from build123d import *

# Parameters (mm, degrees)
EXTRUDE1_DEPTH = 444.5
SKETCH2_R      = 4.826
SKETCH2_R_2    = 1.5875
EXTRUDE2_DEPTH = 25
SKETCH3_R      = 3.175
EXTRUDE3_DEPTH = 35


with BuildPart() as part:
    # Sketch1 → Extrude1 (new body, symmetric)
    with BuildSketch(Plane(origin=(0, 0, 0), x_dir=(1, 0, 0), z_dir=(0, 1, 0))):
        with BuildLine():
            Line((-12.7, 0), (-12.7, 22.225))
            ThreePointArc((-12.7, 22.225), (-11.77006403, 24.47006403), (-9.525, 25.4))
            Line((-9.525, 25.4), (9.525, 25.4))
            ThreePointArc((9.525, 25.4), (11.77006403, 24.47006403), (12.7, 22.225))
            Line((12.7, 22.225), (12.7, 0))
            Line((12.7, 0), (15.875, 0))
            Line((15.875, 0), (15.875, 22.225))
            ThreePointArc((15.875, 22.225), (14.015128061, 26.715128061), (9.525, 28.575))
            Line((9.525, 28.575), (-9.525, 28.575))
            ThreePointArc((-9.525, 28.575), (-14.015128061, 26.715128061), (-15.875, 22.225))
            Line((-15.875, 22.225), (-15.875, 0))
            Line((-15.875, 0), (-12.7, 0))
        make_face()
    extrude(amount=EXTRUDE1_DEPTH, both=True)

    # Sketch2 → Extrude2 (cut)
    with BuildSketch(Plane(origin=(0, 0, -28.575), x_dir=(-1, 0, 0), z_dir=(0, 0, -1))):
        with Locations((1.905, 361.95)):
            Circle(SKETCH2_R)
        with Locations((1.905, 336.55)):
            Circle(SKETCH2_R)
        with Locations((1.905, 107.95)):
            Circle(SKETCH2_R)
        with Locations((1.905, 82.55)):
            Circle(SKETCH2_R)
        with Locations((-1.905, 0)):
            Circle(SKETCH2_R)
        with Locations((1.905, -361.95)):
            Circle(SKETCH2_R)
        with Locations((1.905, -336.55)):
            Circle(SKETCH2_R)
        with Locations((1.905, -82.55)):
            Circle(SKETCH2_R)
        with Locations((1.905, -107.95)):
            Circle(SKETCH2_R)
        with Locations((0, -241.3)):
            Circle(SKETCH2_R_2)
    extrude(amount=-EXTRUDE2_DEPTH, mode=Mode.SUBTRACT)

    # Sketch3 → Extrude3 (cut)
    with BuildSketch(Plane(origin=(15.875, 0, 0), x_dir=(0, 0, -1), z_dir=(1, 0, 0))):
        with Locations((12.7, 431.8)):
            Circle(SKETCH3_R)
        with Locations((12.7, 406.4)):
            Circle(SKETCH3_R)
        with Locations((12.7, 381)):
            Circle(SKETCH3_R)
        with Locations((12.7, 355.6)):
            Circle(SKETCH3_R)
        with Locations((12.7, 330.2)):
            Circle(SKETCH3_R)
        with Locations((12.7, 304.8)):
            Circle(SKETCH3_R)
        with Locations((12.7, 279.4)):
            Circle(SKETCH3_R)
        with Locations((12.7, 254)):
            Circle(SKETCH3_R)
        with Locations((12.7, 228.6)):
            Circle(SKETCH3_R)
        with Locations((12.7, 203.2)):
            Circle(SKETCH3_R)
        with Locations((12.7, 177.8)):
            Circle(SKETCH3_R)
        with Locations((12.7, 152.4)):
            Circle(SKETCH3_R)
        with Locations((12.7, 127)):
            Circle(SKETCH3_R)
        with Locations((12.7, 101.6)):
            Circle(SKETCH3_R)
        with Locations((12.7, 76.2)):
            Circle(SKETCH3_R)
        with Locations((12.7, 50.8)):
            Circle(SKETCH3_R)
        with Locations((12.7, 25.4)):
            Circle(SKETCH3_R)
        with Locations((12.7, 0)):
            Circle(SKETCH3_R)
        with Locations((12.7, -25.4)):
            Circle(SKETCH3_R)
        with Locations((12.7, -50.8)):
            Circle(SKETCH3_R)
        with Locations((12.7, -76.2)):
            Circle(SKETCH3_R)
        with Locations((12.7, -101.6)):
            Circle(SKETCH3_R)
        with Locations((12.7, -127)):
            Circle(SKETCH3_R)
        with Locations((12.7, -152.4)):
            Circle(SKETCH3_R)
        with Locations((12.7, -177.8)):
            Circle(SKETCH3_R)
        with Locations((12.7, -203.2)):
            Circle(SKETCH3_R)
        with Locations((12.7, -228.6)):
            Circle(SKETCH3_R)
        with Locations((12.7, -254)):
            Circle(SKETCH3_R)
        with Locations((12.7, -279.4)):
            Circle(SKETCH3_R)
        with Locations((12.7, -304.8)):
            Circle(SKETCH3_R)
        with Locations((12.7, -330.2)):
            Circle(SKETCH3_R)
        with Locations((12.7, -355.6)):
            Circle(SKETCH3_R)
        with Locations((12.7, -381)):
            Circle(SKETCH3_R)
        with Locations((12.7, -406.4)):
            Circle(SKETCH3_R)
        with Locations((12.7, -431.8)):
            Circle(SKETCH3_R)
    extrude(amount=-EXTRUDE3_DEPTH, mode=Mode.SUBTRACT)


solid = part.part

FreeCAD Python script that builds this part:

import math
import FreeCAD as App
import Part
import Sketcher
Q = App.Units.Quantity

doc = App.newDocument("Part")
body = doc.addObject("PartDesign::Body", "Body")

# Sketch on XZ plane
sketch1 = body.newObject("Sketcher::SketchObject", "Sketch")
sketch1.AttachmentSupport = (doc.getObject("XZ_Plane"), [""])
sketch1.MapMode = "FlatFace"
sketch1.addGeometry(Part.LineSegment(App.Vector(-12.7, 0, 0), App.Vector(-12.7, -22.225, 0)), False)
sketch1.addGeometry(Part.ArcOfCircle(Part.Circle(App.Vector(-9.525, -22.225, 0), App.Vector(0, 0, 1), 3.175), math.radians(-180), math.radians(-90)), False)
sketch1.addGeometry(Part.LineSegment(App.Vector(-9.525, -25.4, 0), App.Vector(9.525, -25.4, 0)), False)
sketch1.addGeometry(Part.ArcOfCircle(Part.Circle(App.Vector(9.525, -22.225, 0), App.Vector(0, 0, 1), 3.175), math.radians(-90), math.radians(0)), False)
sketch1.addGeometry(Part.LineSegment(App.Vector(12.7, -22.225, 0), App.Vector(12.7, 0, 0)), False)
sketch1.addGeometry(Part.LineSegment(App.Vector(12.7, 0, 0), App.Vector(15.875, 0, 0)), False)
sketch1.addGeometry(Part.LineSegment(App.Vector(15.875, 0, 0), App.Vector(15.875, -22.225, 0)), False)
sketch1.addGeometry(Part.ArcOfCircle(Part.Circle(App.Vector(9.525, -22.225, 0), App.Vector(0, 0, 1), 6.35), math.radians(-90), math.radians(0)), False)
sketch1.addGeometry(Part.LineSegment(App.Vector(9.525, -28.575, 0), App.Vector(-9.525, -28.575, 0)), False)
sketch1.addGeometry(Part.ArcOfCircle(Part.Circle(App.Vector(-9.525, -22.225, 0), App.Vector(0, 0, 1), 6.35), math.radians(180), math.radians(270)), False)
sketch1.addGeometry(Part.LineSegment(App.Vector(-15.875, -22.225, 0), App.Vector(-15.875, 0, 0)), False)
sketch1.addGeometry(Part.LineSegment(App.Vector(-15.875, 0, 0), App.Vector(-12.7, 0, 0)), False)
sketch1.addConstraint(Sketcher.Constraint("Tangent", 0, 2, 1, 1))
sketch1.addConstraint(Sketcher.Constraint("Tangent", 1, 2, 2, 1))
sketch1.addConstraint(Sketcher.Constraint("Tangent", 2, 2, 3, 1))
sketch1.addConstraint(Sketcher.Constraint("Tangent", 3, 2, 4, 1))
sketch1.addConstraint(Sketcher.Constraint("Coincident", 4, 2, 5, 1))
sketch1.addConstraint(Sketcher.Constraint("Coincident", 5, 2, 6, 1))
sketch1.addConstraint(Sketcher.Constraint("Tangent", 6, 2, 7, 2))
sketch1.addConstraint(Sketcher.Constraint("Tangent", 7, 1, 8, 1))
sketch1.addConstraint(Sketcher.Constraint("Tangent", 8, 2, 9, 2))
sketch1.addConstraint(Sketcher.Constraint("Tangent", 9, 1, 10, 1))
sketch1.addConstraint(Sketcher.Constraint("Coincident", 10, 2, 11, 1))
sketch1.addConstraint(Sketcher.Constraint("Coincident", 11, 2, 0, 1))
sketch1.addConstraint(Sketcher.Constraint("Vertical", 0))
sketch1.addConstraint(Sketcher.Constraint("Horizontal", 2))
sketch1.addConstraint(Sketcher.Constraint("Vertical", 4))
sketch1.addConstraint(Sketcher.Constraint("Horizontal", 5))
sketch1.addConstraint(Sketcher.Constraint("Vertical", 6))
sketch1.addConstraint(Sketcher.Constraint("Horizontal", 8))
sketch1.addConstraint(Sketcher.Constraint("Vertical", 10))
sketch1.addConstraint(Sketcher.Constraint("Horizontal", 11))
sketch1.addConstraint(Sketcher.Constraint("Coincident", 7, 3, 3, 3))
sketch1.addConstraint(Sketcher.Constraint("Coincident", 9, 3, 1, 3))
sketch1.addConstraint(Sketcher.Constraint("Equal", 1, 3))
sketch1.addConstraint(Sketcher.Constraint("Symmetric", 5, 2, 10, 2, -1, 1))
sketch1.addConstraint(Sketcher.Constraint("PointOnObject", 4, 2, -1))
sketch1.addConstraint(Sketcher.Constraint("Radius", 7, Q("0.25 in")))
sketch1.addConstraint(Sketcher.Constraint("DistanceY", 1, 2, -1, 1, Q("1 in")))
sketch1.addConstraint(Sketcher.Constraint("Radius", 1, Q("0.125 in")))
sketch1.addConstraint(Sketcher.Constraint("DistanceX", 2, 1, 2, 2, Q("0.75 in")))
pad1 = body.newObject("PartDesign::Pad", "Pad")
pad1.Profile = sketch1
pad1.Length = Q("35 in")
pad1.Midplane = True

# Sketch on XY plane
sketch2 = body.newObject("Sketcher::SketchObject", "Sketch001")
sketch2.AttachmentSupport = (doc.getObject("XY_Plane"), [""])
sketch2.MapMode = "FlatFace"
sketch2.AttachmentOffset = App.Placement(App.Vector(0, 0, -1.125 * 25.4), App.Rotation())
sketch2.addGeometry(Part.Circle(App.Vector(-1.905, 361.95, 0), App.Vector(0, 0, 1), 4.826), False)
sketch2.addGeometry(Part.Circle(App.Vector(-1.905, 336.55, 0), App.Vector(0, 0, 1), 4.826), False)
sketch2.addGeometry(Part.Circle(App.Vector(-1.905, 107.95, 0), App.Vector(0, 0, 1), 4.826), False)
sketch2.addGeometry(Part.Circle(App.Vector(-1.905, 82.55, 0), App.Vector(0, 0, 1), 4.826), False)
sketch2.addGeometry(Part.Circle(App.Vector(1.905, 0, 0), App.Vector(0, 0, 1), 4.826), False)
sketch2.addGeometry(Part.Circle(App.Vector(-1.905, -361.95, 0), App.Vector(0, 0, 1), 4.826), False)
sketch2.addGeometry(Part.Circle(App.Vector(-1.905, -336.55, 0), App.Vector(0, 0, 1), 4.826), False)
sketch2.addGeometry(Part.Circle(App.Vector(-1.905, -82.55, 0), App.Vector(0, 0, 1), 4.826), False)
sketch2.addGeometry(Part.Circle(App.Vector(-1.905, -107.95, 0), App.Vector(0, 0, 1), 4.826), False)
sketch2.addGeometry(Part.Circle(App.Vector(0, -241.3, 0), App.Vector(0, 0, 1), 1.5875), False)
sketch2.addConstraint(Sketcher.Constraint("Equal", 0, 1))
sketch2.addConstraint(Sketcher.Constraint("Equal", 1, 2))
sketch2.addConstraint(Sketcher.Constraint("Equal", 2, 3))
sketch2.addConstraint(Sketcher.Constraint("Equal", 3, 4))
sketch2.addConstraint(Sketcher.Constraint("Equal", 4, 5))
sketch2.addConstraint(Sketcher.Constraint("Equal", 5, 6))
sketch2.addConstraint(Sketcher.Constraint("Equal", 6, 7))
sketch2.addConstraint(Sketcher.Constraint("Equal", 7, 8))
sketch2.addConstraint(Sketcher.Constraint("Symmetric", 0, 3, 5, 3, -1))
sketch2.addConstraint(Sketcher.Constraint("Symmetric", 1, 3, 6, 3, -1))
sketch2.addConstraint(Sketcher.Constraint("Symmetric", 3, 3, 7, 3, -1))
sketch2.addConstraint(Sketcher.Constraint("Symmetric", 2, 3, 8, 3, -1))
sketch2.addConstraint(Sketcher.Constraint("PointOnObject", 4, 3, -1))
sketch2.addConstraint(Sketcher.Constraint("PointOnObject", 9, 3, -2))
sketch2.addConstraint(Sketcher.Constraint("Vertical", 0, 3, 1, 3))
sketch2.addConstraint(Sketcher.Constraint("Vertical", 1, 3, 2, 3))
sketch2.addConstraint(Sketcher.Constraint("Vertical", 2, 3, 3, 3))
sketch2.addConstraint(Sketcher.Constraint("Diameter", 0, Q("0.38 in")))
sketch2.addConstraint(Sketcher.Constraint("Diameter", 9, Q("0.125 in")))
sketch2.addConstraint(Sketcher.Constraint("DistanceY", 1, 3, 0, 3, Q("1 in")))
sketch2.addConstraint(Sketcher.Constraint("DistanceY", 2, 3, 1, 3, Q("9 in")))
sketch2.addConstraint(Sketcher.Constraint("DistanceY", 3, 3, 2, 3, Q("1 in")))
sketch2.addConstraint(Sketcher.Constraint("DistanceY", 9, 3, -1, 1, Q("9.5 in")))
sketch2.addConstraint(Sketcher.Constraint("DistanceY", 5, 3, 3, 3, Q("17.5 in")))
sketch2.addConstraint(Sketcher.Constraint("DistanceX", 3, 3, 4, 3, Q("0.15 in")))
sketch2.addConstraint(Sketcher.Constraint("DistanceX", 0, 3, -1, 1, Q("0.075 in")))
pocket1 = body.newObject("PartDesign::Pocket", "Pocket")
pocket1.Profile = sketch2
pocket1.Length = 25
pocket1.Reversed = True

# Sketch on YZ plane
sketch3 = body.newObject("Sketcher::SketchObject", "Sketch002")
sketch3.AttachmentSupport = (doc.getObject("YZ_Plane"), [""])
sketch3.MapMode = "FlatFace"
sketch3.AttachmentOffset = App.Placement(App.Vector(0, 0, 0.625 * 25.4), App.Rotation())
sketch3.addGeometry(Part.Circle(App.Vector(431.8, -12.7, 0), App.Vector(0, 0, 1), 3.175), False)
sketch3.addGeometry(Part.Circle(App.Vector(406.4, -12.7, 0), App.Vector(0, 0, 1), 3.175), False)
sketch3.addGeometry(Part.Circle(App.Vector(381, -12.7, 0), App.Vector(0, 0, 1), 3.175), False)
sketch3.addGeometry(Part.Circle(App.Vector(355.6, -12.7, 0), App.Vector(0, 0, 1), 3.175), False)
sketch3.addGeometry(Part.Circle(App.Vector(330.2, -12.7, 0), App.Vector(0, 0, 1), 3.175), False)
sketch3.addGeometry(Part.Circle(App.Vector(304.8, -12.7, 0), App.Vector(0, 0, 1), 3.175), False)
sketch3.addGeometry(Part.Circle(App.Vector(279.4, -12.7, 0), App.Vector(0, 0, 1), 3.175), False)
sketch3.addGeometry(Part.Circle(App.Vector(254, -12.7, 0), App.Vector(0, 0, 1), 3.175), False)
sketch3.addGeometry(Part.Circle(App.Vector(228.6, -12.7, 0), App.Vector(0, 0, 1), 3.175), False)
sketch3.addGeometry(Part.Circle(App.Vector(203.2, -12.7, 0), App.Vector(0, 0, 1), 3.175), False)
sketch3.addGeometry(Part.Circle(App.Vector(177.8, -12.7, 0), App.Vector(0, 0, 1), 3.175), False)
sketch3.addGeometry(Part.Circle(App.Vector(152.4, -12.7, 0), App.Vector(0, 0, 1), 3.175), False)
sketch3.addGeometry(Part.Circle(App.Vector(127, -12.7, 0), App.Vector(0, 0, 1), 3.175), False)
sketch3.addGeometry(Part.Circle(App.Vector(101.6, -12.7, 0), App.Vector(0, 0, 1), 3.175), False)
sketch3.addGeometry(Part.Circle(App.Vector(76.2, -12.7, 0), App.Vector(0, 0, 1), 3.175), False)
sketch3.addGeometry(Part.Circle(App.Vector(50.8, -12.7, 0), App.Vector(0, 0, 1), 3.175), False)
sketch3.addGeometry(Part.Circle(App.Vector(25.4, -12.7, 0), App.Vector(0, 0, 1), 3.175), False)
sketch3.addGeometry(Part.Circle(App.Vector(0, -12.7, 0), App.Vector(0, 0, 1), 3.175), False)
sketch3.addGeometry(Part.Circle(App.Vector(-25.4, -12.7, 0), App.Vector(0, 0, 1), 3.175), False)
sketch3.addGeometry(Part.Circle(App.Vector(-50.8, -12.7, 0), App.Vector(0, 0, 1), 3.175), False)
sketch3.addGeometry(Part.Circle(App.Vector(-76.2, -12.7, 0), App.Vector(0, 0, 1), 3.175), False)
sketch3.addGeometry(Part.Circle(App.Vector(-101.6, -12.7, 0), App.Vector(0, 0, 1), 3.175), False)
sketch3.addGeometry(Part.Circle(App.Vector(-127, -12.7, 0), App.Vector(0, 0, 1), 3.175), False)
sketch3.addGeometry(Part.Circle(App.Vector(-152.4, -12.7, 0), App.Vector(0, 0, 1), 3.175), False)
sketch3.addGeometry(Part.Circle(App.Vector(-177.8, -12.7, 0), App.Vector(0, 0, 1), 3.175), False)
sketch3.addGeometry(Part.Circle(App.Vector(-203.2, -12.7, 0), App.Vector(0, 0, 1), 3.175), False)
sketch3.addGeometry(Part.Circle(App.Vector(-228.6, -12.7, 0), App.Vector(0, 0, 1), 3.175), False)
sketch3.addGeometry(Part.Circle(App.Vector(-254, -12.7, 0), App.Vector(0, 0, 1), 3.175), False)
sketch3.addGeometry(Part.Circle(App.Vector(-279.4, -12.7, 0), App.Vector(0, 0, 1), 3.175), False)
sketch3.addGeometry(Part.Circle(App.Vector(-304.8, -12.7, 0), App.Vector(0, 0, 1), 3.175), False)
sketch3.addGeometry(Part.Circle(App.Vector(-330.2, -12.7, 0), App.Vector(0, 0, 1), 3.175), False)
sketch3.addGeometry(Part.Circle(App.Vector(-355.6, -12.7, 0), App.Vector(0, 0, 1), 3.175), False)
sketch3.addGeometry(Part.Circle(App.Vector(-381, -12.7, 0), App.Vector(0, 0, 1), 3.175), False)
sketch3.addGeometry(Part.Circle(App.Vector(-406.4, -12.7, 0), App.Vector(0, 0, 1), 3.175), False)
sketch3.addGeometry(Part.Circle(App.Vector(-431.8, -12.7, 0), App.Vector(0, 0, 1), 3.175), False)
sketch3.addConstraint(Sketcher.Constraint("Equal", 0, 1))
sketch3.addConstraint(Sketcher.Constraint("Equal", 1, 2))
sketch3.addConstraint(Sketcher.Constraint("Equal", 2, 3))
sketch3.addConstraint(Sketcher.Constraint("Equal", 3, 4))
sketch3.addConstraint(Sketcher.Constraint("Equal", 4, 5))
sketch3.addConstraint(Sketcher.Constraint("Equal", 5, 6))
sketch3.addConstraint(Sketcher.Constraint("Equal", 6, 7))
sketch3.addConstraint(Sketcher.Constraint("Equal", 7, 8))
sketch3.addConstraint(Sketcher.Constraint("Equal", 8, 9))
sketch3.addConstraint(Sketcher.Constraint("Equal", 9, 10))
sketch3.addConstraint(Sketcher.Constraint("Equal", 10, 11))
sketch3.addConstraint(Sketcher.Constraint("Equal", 11, 12))
sketch3.addConstraint(Sketcher.Constraint("Equal", 12, 13))
sketch3.addConstraint(Sketcher.Constraint("Equal", 13, 14))
sketch3.addConstraint(Sketcher.Constraint("Equal", 14, 15))
sketch3.addConstraint(Sketcher.Constraint("Equal", 15, 16))
sketch3.addConstraint(Sketcher.Constraint("Equal", 16, 17))
sketch3.addConstraint(Sketcher.Constraint("Equal", 17, 18))
sketch3.addConstraint(Sketcher.Constraint("Equal", 18, 19))
sketch3.addConstraint(Sketcher.Constraint("Equal", 19, 20))
sketch3.addConstraint(Sketcher.Constraint("Equal", 20, 21))
sketch3.addConstraint(Sketcher.Constraint("Equal", 21, 22))
sketch3.addConstraint(Sketcher.Constraint("Equal", 22, 23))
sketch3.addConstraint(Sketcher.Constraint("Equal", 23, 24))
sketch3.addConstraint(Sketcher.Constraint("Equal", 24, 25))
sketch3.addConstraint(Sketcher.Constraint("Equal", 25, 26))
sketch3.addConstraint(Sketcher.Constraint("Equal", 26, 27))
sketch3.addConstraint(Sketcher.Constraint("Equal", 27, 28))
sketch3.addConstraint(Sketcher.Constraint("Equal", 28, 29))
sketch3.addConstraint(Sketcher.Constraint("Equal", 29, 30))
sketch3.addConstraint(Sketcher.Constraint("Equal", 30, 31))
sketch3.addConstraint(Sketcher.Constraint("Equal", 31, 32))
sketch3.addConstraint(Sketcher.Constraint("Equal", 32, 33))
sketch3.addConstraint(Sketcher.Constraint("Equal", 33, 34))
sketch3.addConstraint(Sketcher.Constraint("Symmetric", 16, 3, 18, 3, -2))
sketch3.addConstraint(Sketcher.Constraint("Symmetric", 15, 3, 19, 3, -2))
sketch3.addConstraint(Sketcher.Constraint("Symmetric", 14, 3, 20, 3, -2))
sketch3.addConstraint(Sketcher.Constraint("Symmetric", 13, 3, 21, 3, -2))
sketch3.addConstraint(Sketcher.Constraint("Symmetric", 12, 3, 22, 3, -2))
sketch3.addConstraint(Sketcher.Constraint("Symmetric", 11, 3, 23, 3, -2))
sketch3.addConstraint(Sketcher.Constraint("Symmetric", 10, 3, 24, 3, -2))
sketch3.addConstraint(Sketcher.Constraint("Symmetric", 9, 3, 25, 3, -2))
sketch3.addConstraint(Sketcher.Constraint("Symmetric", 8, 3, 26, 3, -2))
sketch3.addConstraint(Sketcher.Constraint("Symmetric", 7, 3, 27, 3, -2))
sketch3.addConstraint(Sketcher.Constraint("Symmetric", 6, 3, 28, 3, -2))
sketch3.addConstraint(Sketcher.Constraint("Symmetric", 5, 3, 29, 3, -2))
sketch3.addConstraint(Sketcher.Constraint("Symmetric", 4, 3, 30, 3, -2))
sketch3.addConstraint(Sketcher.Constraint("Symmetric", 3, 3, 31, 3, -2))
sketch3.addConstraint(Sketcher.Constraint("Symmetric", 2, 3, 32, 3, -2))
sketch3.addConstraint(Sketcher.Constraint("Symmetric", 1, 3, 33, 3, -2))
sketch3.addConstraint(Sketcher.Constraint("Symmetric", 0, 3, 34, 3, -2))
sketch3.addConstraint(Sketcher.Constraint("PointOnObject", 17, 3, -2))
sketch3.addConstraint(Sketcher.Constraint("Horizontal", 0, 3, 1, 3))
sketch3.addConstraint(Sketcher.Constraint("Horizontal", 1, 3, 2, 3))
sketch3.addConstraint(Sketcher.Constraint("Horizontal", 2, 3, 3, 3))
sketch3.addConstraint(Sketcher.Constraint("Horizontal", 3, 3, 4, 3))
sketch3.addConstraint(Sketcher.Constraint("Horizontal", 4, 3, 5, 3))
sketch3.addConstraint(Sketcher.Constraint("Horizontal", 5, 3, 6, 3))
sketch3.addConstraint(Sketcher.Constraint("Horizontal", 6, 3, 7, 3))
sketch3.addConstraint(Sketcher.Constraint("Horizontal", 7, 3, 8, 3))
sketch3.addConstraint(Sketcher.Constraint("Horizontal", 8, 3, 9, 3))
sketch3.addConstraint(Sketcher.Constraint("Horizontal", 9, 3, 10, 3))
sketch3.addConstraint(Sketcher.Constraint("Horizontal", 10, 3, 11, 3))
sketch3.addConstraint(Sketcher.Constraint("Horizontal", 11, 3, 12, 3))
sketch3.addConstraint(Sketcher.Constraint("Horizontal", 12, 3, 13, 3))
sketch3.addConstraint(Sketcher.Constraint("Horizontal", 13, 3, 14, 3))
sketch3.addConstraint(Sketcher.Constraint("Horizontal", 14, 3, 15, 3))
sketch3.addConstraint(Sketcher.Constraint("Horizontal", 15, 3, 16, 3))
sketch3.addConstraint(Sketcher.Constraint("Horizontal", 16, 3, 17, 3))
sketch3.addConstraint(Sketcher.Constraint("Diameter", 0, Q("0.25 in")))
sketch3.addConstraint(Sketcher.Constraint("DistanceX", -1, 1, 0, 3, Q("17 in")))
sketch3.addConstraint(Sketcher.Constraint("DistanceX", -1, 1, 1, 3, Q("16 in")))
sketch3.addConstraint(Sketcher.Constraint("DistanceX", -1, 1, 2, 3, Q("15 in")))
sketch3.addConstraint(Sketcher.Constraint("DistanceX", -1, 1, 3, 3, Q("14 in")))
sketch3.addConstraint(Sketcher.Constraint("DistanceX", -1, 1, 4, 3, Q("13 in")))
sketch3.addConstraint(Sketcher.Constraint("DistanceX", -1, 1, 5, 3, Q("12 in")))
sketch3.addConstraint(Sketcher.Constraint("DistanceX", -1, 1, 6, 3, Q("11 in")))
sketch3.addConstraint(Sketcher.Constraint("DistanceX", -1, 1, 7, 3, Q("10 in")))
sketch3.addConstraint(Sketcher.Constraint("DistanceX", -1, 1, 8, 3, Q("9 in")))
sketch3.addConstraint(Sketcher.Constraint("DistanceX", -1, 1, 9, 3, Q("8 in")))
sketch3.addConstraint(Sketcher.Constraint("DistanceX", -1, 1, 10, 3, Q("7 in")))
sketch3.addConstraint(Sketcher.Constraint("DistanceX", -1, 1, 11, 3, Q("6 in")))
sketch3.addConstraint(Sketcher.Constraint("DistanceX", -1, 1, 12, 3, Q("5 in")))
sketch3.addConstraint(Sketcher.Constraint("DistanceX", -1, 1, 13, 3, Q("4 in")))
sketch3.addConstraint(Sketcher.Constraint("DistanceX", -1, 1, 14, 3, Q("3 in")))
sketch3.addConstraint(Sketcher.Constraint("DistanceX", -1, 1, 15, 3, Q("2 in")))
sketch3.addConstraint(Sketcher.Constraint("DistanceX", -1, 1, 16, 3, Q("1 in")))
sketch3.addConstraint(Sketcher.Constraint("DistanceY", 0, 3, -1, 1, Q("0.5 in")))
pocket2 = body.newObject("PartDesign::Pocket", "Pocket001")
pocket2.Profile = sketch3
pocket2.Length = 35

doc.recompute()
